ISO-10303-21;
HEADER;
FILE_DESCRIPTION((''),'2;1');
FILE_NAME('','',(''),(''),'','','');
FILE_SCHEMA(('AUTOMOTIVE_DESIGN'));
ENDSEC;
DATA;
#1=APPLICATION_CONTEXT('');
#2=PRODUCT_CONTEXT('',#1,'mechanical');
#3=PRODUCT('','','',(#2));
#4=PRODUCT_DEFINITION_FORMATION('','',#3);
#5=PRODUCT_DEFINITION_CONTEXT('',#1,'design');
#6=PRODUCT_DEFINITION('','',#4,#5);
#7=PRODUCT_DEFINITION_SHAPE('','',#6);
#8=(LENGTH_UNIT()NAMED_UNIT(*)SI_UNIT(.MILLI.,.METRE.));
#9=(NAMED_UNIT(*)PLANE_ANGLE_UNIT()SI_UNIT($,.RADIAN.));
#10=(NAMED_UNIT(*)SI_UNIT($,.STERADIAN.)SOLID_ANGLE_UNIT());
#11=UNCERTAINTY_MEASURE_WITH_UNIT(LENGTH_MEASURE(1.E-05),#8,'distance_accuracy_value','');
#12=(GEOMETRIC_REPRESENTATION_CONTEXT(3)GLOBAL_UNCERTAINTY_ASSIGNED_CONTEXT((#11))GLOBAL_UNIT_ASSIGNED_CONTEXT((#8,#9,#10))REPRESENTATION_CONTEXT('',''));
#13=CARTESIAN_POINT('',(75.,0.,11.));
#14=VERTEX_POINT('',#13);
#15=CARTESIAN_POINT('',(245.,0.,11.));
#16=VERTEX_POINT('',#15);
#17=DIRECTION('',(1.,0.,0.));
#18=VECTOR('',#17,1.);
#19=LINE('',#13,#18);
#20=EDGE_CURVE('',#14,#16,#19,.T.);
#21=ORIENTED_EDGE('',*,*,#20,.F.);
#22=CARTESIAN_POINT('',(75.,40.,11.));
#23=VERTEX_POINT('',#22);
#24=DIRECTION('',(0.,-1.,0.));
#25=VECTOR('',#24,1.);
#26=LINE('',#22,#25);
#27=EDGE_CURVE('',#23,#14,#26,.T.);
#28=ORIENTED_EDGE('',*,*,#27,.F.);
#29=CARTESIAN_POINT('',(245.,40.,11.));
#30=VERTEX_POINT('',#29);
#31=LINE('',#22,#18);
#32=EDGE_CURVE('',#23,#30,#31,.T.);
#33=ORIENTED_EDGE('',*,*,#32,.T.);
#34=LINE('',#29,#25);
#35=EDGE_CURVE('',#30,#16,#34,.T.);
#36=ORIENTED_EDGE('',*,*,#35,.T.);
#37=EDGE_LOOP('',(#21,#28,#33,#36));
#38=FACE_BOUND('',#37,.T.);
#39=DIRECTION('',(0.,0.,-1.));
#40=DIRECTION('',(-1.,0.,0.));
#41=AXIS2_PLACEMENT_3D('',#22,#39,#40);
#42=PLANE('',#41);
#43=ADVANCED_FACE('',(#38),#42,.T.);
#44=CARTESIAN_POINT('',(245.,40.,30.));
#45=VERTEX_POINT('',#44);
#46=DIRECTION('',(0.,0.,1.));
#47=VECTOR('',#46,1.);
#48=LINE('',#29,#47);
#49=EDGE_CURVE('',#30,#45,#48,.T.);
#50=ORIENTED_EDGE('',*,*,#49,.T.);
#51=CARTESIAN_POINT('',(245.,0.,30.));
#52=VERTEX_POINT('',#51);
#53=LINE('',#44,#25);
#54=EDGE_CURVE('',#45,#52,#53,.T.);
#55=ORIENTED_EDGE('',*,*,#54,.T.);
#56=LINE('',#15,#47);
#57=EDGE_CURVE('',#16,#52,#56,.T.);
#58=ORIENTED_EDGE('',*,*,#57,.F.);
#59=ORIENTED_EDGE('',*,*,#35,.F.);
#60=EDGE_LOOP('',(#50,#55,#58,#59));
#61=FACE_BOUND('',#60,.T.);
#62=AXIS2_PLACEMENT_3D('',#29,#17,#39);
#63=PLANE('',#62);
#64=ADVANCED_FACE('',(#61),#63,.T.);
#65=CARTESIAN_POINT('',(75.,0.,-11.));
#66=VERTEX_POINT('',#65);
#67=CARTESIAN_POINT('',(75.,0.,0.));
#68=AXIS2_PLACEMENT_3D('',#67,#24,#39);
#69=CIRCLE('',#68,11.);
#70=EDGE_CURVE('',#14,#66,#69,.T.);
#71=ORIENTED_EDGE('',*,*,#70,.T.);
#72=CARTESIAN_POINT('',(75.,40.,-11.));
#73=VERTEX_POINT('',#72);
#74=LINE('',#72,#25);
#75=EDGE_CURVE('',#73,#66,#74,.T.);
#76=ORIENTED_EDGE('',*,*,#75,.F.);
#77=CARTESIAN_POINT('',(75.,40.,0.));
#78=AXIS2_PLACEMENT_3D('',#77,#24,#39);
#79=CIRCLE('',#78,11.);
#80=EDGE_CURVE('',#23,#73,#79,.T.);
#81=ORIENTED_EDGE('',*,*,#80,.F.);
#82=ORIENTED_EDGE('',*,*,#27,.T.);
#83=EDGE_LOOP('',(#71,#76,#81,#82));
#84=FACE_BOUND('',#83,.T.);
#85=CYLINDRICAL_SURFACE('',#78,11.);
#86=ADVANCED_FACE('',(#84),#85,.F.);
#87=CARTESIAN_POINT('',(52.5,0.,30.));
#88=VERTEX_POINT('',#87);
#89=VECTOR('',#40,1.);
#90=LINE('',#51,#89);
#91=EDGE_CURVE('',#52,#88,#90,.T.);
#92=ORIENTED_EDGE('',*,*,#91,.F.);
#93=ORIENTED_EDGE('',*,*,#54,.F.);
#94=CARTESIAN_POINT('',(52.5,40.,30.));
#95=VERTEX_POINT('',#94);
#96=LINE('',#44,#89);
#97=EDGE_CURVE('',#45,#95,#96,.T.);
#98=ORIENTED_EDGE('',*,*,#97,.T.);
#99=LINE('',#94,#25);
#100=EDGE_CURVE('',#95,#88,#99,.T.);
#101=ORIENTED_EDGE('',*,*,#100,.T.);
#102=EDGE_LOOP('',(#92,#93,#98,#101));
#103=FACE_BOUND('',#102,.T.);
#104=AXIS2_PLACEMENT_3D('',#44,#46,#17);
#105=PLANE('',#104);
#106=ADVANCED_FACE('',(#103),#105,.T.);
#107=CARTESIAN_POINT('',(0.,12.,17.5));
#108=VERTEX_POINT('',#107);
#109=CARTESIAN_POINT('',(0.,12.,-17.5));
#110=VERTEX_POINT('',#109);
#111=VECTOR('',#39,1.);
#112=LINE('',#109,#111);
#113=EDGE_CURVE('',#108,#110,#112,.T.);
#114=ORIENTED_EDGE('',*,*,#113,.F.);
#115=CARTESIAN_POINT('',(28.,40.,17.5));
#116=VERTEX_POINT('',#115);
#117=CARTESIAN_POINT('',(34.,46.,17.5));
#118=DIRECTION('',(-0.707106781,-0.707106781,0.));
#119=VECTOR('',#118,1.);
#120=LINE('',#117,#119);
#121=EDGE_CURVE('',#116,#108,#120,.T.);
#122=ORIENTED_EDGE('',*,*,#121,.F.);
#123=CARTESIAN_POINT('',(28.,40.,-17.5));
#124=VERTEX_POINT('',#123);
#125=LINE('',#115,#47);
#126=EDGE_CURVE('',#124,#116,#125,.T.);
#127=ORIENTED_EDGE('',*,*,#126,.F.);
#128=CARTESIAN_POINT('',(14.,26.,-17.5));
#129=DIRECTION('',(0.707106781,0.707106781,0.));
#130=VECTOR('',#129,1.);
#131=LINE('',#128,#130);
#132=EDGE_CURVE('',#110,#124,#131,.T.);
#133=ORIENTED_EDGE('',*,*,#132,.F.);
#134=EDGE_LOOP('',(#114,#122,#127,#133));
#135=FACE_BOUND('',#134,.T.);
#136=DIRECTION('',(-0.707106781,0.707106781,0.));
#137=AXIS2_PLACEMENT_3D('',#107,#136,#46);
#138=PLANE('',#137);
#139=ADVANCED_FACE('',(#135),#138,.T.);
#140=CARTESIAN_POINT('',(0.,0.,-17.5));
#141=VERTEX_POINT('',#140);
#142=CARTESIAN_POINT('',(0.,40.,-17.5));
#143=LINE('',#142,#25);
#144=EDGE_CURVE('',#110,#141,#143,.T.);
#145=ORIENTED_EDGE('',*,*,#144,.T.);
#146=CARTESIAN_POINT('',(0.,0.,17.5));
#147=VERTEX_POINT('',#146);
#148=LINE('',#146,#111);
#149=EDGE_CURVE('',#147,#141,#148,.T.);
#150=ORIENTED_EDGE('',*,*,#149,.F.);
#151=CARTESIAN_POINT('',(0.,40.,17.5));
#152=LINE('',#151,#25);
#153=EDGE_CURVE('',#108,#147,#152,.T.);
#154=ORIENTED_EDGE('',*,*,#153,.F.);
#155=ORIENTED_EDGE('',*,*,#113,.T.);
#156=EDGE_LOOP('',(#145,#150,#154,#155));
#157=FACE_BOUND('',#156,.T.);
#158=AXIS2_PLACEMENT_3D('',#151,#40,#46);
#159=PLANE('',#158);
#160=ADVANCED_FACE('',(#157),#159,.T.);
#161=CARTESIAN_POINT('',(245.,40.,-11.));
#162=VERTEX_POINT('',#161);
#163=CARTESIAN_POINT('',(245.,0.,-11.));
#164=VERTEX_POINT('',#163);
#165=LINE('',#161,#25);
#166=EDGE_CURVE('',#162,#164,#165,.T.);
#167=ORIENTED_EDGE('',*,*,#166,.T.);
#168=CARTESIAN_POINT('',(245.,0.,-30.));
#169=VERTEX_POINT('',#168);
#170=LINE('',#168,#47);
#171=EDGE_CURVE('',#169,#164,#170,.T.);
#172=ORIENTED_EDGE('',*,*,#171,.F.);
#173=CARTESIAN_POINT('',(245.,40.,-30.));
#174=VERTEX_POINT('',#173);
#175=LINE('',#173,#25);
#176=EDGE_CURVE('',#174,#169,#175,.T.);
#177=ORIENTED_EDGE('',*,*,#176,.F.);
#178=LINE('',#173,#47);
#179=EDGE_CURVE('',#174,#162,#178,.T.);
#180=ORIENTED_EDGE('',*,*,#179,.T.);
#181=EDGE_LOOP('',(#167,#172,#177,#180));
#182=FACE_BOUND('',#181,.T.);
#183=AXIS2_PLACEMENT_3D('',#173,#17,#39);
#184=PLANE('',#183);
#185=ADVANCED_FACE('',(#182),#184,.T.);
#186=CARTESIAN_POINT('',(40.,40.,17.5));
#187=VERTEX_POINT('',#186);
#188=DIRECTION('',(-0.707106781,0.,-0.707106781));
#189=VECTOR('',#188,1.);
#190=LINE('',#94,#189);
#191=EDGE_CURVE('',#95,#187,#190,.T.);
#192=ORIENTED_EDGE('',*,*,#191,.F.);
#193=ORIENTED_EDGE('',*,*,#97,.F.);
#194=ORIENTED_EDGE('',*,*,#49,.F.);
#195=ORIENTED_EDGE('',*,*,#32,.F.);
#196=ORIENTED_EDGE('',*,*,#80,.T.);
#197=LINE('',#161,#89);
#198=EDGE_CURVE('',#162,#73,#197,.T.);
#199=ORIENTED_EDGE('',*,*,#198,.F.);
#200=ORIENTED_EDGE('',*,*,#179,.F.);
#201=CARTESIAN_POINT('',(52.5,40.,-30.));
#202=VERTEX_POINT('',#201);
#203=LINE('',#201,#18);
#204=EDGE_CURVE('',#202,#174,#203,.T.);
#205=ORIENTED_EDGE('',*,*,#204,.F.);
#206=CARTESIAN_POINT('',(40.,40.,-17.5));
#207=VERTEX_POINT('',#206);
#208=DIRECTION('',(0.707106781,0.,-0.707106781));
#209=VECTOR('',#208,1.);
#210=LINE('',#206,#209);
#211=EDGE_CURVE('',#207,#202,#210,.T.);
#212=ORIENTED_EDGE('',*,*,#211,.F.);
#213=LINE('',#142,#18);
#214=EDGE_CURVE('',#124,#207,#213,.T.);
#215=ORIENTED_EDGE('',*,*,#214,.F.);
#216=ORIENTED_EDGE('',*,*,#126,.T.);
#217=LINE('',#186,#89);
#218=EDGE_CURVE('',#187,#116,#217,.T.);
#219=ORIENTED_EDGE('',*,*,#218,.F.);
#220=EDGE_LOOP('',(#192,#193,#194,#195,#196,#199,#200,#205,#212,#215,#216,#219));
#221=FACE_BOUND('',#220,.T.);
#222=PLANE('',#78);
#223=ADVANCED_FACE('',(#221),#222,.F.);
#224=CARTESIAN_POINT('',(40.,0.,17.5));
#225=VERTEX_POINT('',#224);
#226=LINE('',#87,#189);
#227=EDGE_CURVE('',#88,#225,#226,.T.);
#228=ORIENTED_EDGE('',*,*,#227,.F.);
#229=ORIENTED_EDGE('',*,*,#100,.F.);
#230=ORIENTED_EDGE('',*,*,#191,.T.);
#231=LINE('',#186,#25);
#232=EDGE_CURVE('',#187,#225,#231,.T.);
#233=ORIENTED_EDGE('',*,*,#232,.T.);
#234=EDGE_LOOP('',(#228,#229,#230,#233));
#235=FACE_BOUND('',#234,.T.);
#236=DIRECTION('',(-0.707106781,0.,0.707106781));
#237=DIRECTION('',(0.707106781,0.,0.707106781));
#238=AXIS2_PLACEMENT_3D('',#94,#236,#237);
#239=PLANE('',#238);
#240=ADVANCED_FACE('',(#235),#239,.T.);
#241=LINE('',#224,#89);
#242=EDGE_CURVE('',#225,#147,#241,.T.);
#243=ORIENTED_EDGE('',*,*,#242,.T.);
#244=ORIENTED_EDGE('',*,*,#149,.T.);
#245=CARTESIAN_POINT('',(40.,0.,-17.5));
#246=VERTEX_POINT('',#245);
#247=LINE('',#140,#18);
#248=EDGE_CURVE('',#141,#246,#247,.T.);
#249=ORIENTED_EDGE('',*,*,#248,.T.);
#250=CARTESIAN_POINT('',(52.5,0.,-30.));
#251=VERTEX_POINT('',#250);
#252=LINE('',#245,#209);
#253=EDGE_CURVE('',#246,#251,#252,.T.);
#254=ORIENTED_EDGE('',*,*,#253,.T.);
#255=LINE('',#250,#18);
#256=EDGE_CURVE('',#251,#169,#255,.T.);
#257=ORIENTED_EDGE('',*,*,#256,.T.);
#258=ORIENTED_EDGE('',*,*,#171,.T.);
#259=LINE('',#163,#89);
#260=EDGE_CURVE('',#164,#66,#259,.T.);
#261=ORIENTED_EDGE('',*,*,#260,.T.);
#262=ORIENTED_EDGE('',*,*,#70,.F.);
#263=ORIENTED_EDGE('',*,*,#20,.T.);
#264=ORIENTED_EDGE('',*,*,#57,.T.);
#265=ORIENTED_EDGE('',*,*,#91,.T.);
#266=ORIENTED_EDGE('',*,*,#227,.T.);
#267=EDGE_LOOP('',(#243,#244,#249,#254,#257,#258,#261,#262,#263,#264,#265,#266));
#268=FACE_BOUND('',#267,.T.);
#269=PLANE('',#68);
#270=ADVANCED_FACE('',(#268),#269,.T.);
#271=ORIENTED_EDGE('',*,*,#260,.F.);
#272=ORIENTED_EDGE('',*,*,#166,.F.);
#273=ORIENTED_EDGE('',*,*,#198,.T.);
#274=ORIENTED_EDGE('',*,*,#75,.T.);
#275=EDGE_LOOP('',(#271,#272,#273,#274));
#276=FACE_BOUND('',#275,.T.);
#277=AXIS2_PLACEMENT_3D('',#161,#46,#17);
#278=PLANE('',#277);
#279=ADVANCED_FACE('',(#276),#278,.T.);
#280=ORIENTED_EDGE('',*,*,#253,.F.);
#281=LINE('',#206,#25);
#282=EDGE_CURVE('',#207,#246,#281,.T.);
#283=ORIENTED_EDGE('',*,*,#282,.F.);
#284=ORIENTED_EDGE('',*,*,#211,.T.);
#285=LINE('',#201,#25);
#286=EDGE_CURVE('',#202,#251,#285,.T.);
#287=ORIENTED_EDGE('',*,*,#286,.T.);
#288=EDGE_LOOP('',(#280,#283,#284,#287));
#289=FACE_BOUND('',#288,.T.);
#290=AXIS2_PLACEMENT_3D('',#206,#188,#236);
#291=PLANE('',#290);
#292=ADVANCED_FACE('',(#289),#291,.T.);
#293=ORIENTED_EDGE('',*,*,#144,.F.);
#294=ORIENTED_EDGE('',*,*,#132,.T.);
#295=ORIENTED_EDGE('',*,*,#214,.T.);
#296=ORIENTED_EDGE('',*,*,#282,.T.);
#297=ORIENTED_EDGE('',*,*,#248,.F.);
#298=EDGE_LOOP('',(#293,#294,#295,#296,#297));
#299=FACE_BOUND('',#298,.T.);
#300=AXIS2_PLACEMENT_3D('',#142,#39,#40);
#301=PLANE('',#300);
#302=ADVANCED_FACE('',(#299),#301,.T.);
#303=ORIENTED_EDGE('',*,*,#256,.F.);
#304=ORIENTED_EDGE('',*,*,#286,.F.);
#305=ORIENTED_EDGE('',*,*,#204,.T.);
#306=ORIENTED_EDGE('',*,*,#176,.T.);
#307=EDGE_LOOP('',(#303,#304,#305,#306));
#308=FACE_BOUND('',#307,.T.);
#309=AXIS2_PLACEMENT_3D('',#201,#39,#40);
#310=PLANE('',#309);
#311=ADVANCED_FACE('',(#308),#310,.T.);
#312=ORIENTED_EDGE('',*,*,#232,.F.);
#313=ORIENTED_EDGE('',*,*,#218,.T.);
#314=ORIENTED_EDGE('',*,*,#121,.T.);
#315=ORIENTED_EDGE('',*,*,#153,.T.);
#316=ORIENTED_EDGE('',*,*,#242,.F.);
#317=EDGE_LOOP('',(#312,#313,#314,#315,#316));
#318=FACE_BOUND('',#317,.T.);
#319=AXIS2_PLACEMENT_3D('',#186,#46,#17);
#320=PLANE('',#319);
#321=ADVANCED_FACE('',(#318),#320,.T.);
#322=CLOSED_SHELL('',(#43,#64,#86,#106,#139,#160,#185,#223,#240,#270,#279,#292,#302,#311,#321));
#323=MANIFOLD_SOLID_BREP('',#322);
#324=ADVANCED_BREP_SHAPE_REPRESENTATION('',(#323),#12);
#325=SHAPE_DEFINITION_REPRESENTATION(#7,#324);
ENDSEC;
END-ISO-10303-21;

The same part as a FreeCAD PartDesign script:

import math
import FreeCAD as App
import Part
import Sketcher

V = App.Vector
Q = App.Units.Quantity


def edges_at(feature, points):
    """Names of the edges that pass closest to the given points."""
    edges = feature.Shape.Edges
    near = lambda p: min(range(len(edges)), key=lambda i: edges[i].distToShape(Part.Vertex(*p))[0])
    return sorted({f"Edge{near(p) + 1}" for p in points})

doc = App.newDocument("Part")
body = doc.addObject("PartDesign::Body", "Body")

# Sketch on XZ plane
sketch1 = body.newObject("Sketcher::SketchObject", "Sketch")
sketch1.AttachmentSupport = (doc.getObject("XZ_Plane"), [""])
sketch1.MapMode = "FlatFace"
sketch1.addGeometry([
    Part.LineSegment(V(40, -17.5, 0), V(0, -17.5, 0)),  # 0
    Part.LineSegment(V(0, -17.5, 0), V(0, 17.5, 0)),  # 1
    Part.LineSegment(V(0, 17.5, 0), V(40, 17.5, 0)),  # 2
    Part.LineSegment(V(40, 17.5, 0), V(52.5, 30, 0)),  # 3
    Part.LineSegment(V(52.5, 30, 0), V(245, 30, 0)),  # 4
    Part.LineSegment(V(245, 30, 0), V(245, 11, 0)),  # 5
    Part.LineSegment(V(245, 11, 0), V(75, 11, 0)),  # 6
    Part.ArcOfCircle(Part.Circle(V(75, 0, 0), V(0, 0, 1), 11), math.radians(90), math.radians(270)),  # 7
    Part.LineSegment(V(75, -11, 0), V(245, -11, 0)),  # 8
    Part.LineSegment(V(245, -11, 0), V(245, -30, 0)),  # 9
    Part.LineSegment(V(245, -30, 0), V(52.5, -30, 0)),  # 10
    Part.LineSegment(V(52.5, -30, 0), V(40, -17.5, 0)),  # 11
], False)
sketch1.addConstraint([
    Sketcher.Constraint("Coincident", 0, 2, 1, 1),
    Sketcher.Constraint("Coincident", 1, 2, 2, 1),
    Sketcher.Constraint("Coincident", 2, 2, 3, 1),
    Sketcher.Constraint("Coincident", 3, 2, 4, 1),
    Sketcher.Constraint("Coincident", 4, 2, 5, 1),
    Sketcher.Constraint("Coincident", 5, 2, 6, 1),
    Sketcher.Constraint("Tangent", 6, 2, 7, 1),
    Sketcher.Constraint("Tangent", 7, 2, 8, 1),
    Sketcher.Constraint("Coincident", 8, 2, 9, 1),
    Sketcher.Constraint("Coincident", 9, 2, 10, 1),
    Sketcher.Constraint("Coincident", 10, 2, 11, 1),
    Sketcher.Constraint("Coincident", 11, 2, 0, 1),
    Sketcher.Constraint("Horizontal", 0),
    Sketcher.Constraint("Vertical", 1),
    Sketcher.Constraint("Horizontal", 2),
    Sketcher.Constraint("Horizontal", 4),
    Sketcher.Constraint("Vertical", 5),
    Sketcher.Constraint("Horizontal", 6),
    Sketcher.Constraint("Horizontal", 8),
    Sketcher.Constraint("Vertical", 9),
    Sketcher.Constraint("Horizontal", 10),
    Sketcher.Constraint("Symmetric", 0, 2, 1, 2, -1, 1),
    Sketcher.Constraint("Symmetric", 5, 2, 8, 2, -1),
    Sketcher.Constraint("Symmetric", 3, 2, 10, 2, -1),
    Sketcher.Constraint("Perpendicular", 3, 11),
    Sketcher.Constraint("Vertical", 2, 2, 11, 2),
    Sketcher.Constraint("Radius", 7, Q("11 mm")),
    Sketcher.Constraint("DistanceX", 0, 2, 0, 1, Q("40 mm")),
    Sketcher.Constraint("DistanceX", 6, 2, 6, 1, Q("170 mm")),
    Sketcher.Constraint("DistanceY", 1, 1, 1, 2, Q("35 mm")),
    Sketcher.Constraint("DistanceY", 5, 2, 5, 1, Q("19 mm")),
    Sketcher.Constraint("DistanceX", 4, 1, 4, 2, Q("192.5 mm")),
])
pad1 = body.newObject("PartDesign::Pad", "Pad")
pad1.Profile = sketch1
pad1.Length = 40
pad1.Reversed = True
doc.recompute()

chamfer = body.newObject("PartDesign::Chamfer", "Chamfer")
chamfer.Base = (pad1, edges_at(pad1, [(0, 40, 0)]))
chamfer.Size = 28

doc.recompute()
